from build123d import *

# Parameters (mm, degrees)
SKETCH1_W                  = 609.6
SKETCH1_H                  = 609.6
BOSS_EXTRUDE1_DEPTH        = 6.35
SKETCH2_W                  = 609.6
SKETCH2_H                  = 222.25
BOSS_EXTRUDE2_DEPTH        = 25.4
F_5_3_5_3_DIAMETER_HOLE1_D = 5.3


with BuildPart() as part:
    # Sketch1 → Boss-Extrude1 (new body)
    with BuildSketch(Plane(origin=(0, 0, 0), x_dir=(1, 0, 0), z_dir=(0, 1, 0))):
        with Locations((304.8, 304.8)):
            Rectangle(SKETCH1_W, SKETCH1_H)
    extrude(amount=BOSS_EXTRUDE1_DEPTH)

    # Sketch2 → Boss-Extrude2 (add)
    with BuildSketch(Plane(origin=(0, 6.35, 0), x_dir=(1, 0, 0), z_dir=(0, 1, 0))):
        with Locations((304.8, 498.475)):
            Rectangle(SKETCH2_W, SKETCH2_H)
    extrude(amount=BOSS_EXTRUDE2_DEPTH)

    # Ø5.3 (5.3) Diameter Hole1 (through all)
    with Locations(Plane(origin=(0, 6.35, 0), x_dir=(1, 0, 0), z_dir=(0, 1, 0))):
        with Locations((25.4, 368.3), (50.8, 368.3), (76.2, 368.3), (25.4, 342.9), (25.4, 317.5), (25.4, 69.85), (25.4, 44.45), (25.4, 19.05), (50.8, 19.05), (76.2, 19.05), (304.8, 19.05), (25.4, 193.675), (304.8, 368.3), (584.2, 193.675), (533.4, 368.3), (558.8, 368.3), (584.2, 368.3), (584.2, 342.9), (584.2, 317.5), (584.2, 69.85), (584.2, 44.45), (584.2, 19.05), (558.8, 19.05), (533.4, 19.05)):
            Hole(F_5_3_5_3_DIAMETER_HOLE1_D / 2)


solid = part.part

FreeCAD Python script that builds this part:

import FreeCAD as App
import Part
import Sketcher
Q = App.Units.Quantity


def add_polygon(sketch, points):
    """Adds a closed chain of lines whose ends are joined by coincident constraints."""
    first, n = sketch.GeometryCount, len(points)
    for a, b in zip(points, points[1:] + points[:1]):
        sketch.addGeometry(Part.LineSegment(App.Vector(*a, 0), App.Vector(*b, 0)), False)
    for i in range(n):
        sketch.addConstraint(Sketcher.Constraint("Coincident", first + i, 2, first + (i + 1) % n, 1))

doc = App.newDocument("Part")
body = doc.addObject("PartDesign::Body", "Body")

sketch1 = body.newObject("Sketcher::SketchObject", "Sketch")
sketch1.AttachmentSupport = (doc.getObject("XZ_Plane"), [""])
sketch1.MapMode = "FlatFace"
add_polygon(sketch1, [(0, -610), (0, 0), (610, 0), (610, -610)])
sketch1.addConstraint([
    Sketcher.Constraint("Vertical", 0),
    Sketcher.Constraint("Horizontal", 1),
    Sketcher.Constraint("Vertical", 2),
    Sketcher.Constraint("Horizontal", 3),
    Sketcher.Constraint("Coincident", 0, 2, -1, 1),
    Sketcher.Constraint("Equal", 3, 0),
    Sketcher.Constraint("DistanceX", 1, 1, 1, 2, Q("24 in")),
])
pad1 = body.newObject("PartDesign::Pad", "Pad")
pad1.Profile = sketch1
pad1.Length = Q("0.25 in")
pad1.Reversed = True

sketch2 = body.newObject("Sketcher::SketchObject", "Sketch001")
sketch2.AttachmentSupport = (doc.getObject("XZ_Plane"), [""])
sketch2.MapMode = "FlatFace"
sketch2.AttachmentOffset = App.Placement(App.Vector(0, 0, -0.25 * 25.4), App.Rotation())
add_polygon(sketch2, [(0, -610), (0, -387), (610, -387), (610, -610)])
sketch2.addConstraint([
    Sketcher.Constraint("Vertical", 0),
    Sketcher.Constraint("Horizontal", 1),
    Sketcher.Constraint("Vertical", 2),
    Sketcher.Constraint("Horizontal", 3),
    Sketcher.Constraint("PointOnObject", 0, 2, -2),
    Sketcher.Constraint("DistanceX", 1, 1, 1, 2, Q("24 in")),
    Sketcher.Constraint("DistanceY", 2, 2, -1, 1, Q("24 in")),
    Sketcher.Constraint("DistanceY", 0, 1, 0, 2, Q("8.75 in")),
])
pad2 = body.newObject("PartDesign::Pad", "Pad001")
pad2.Profile = sketch2
pad2.Length = Q("1 in")
pad2.Reversed = True

sketch3 = body.newObject("Sketcher::SketchObject", "Sketch002")
sketch3.AttachmentSupport = (doc.getObject("XZ_Plane"), [""])
sketch3.MapMode = "FlatFace"
sketch3.AttachmentOffset = App.Placement(App.Vector(0, 0, -0.25 * 25.4), App.Rotation())
sketch3.addGeometry([
    Part.Circle(App.Vector(25.4, -368.3, 0), App.Vector(0, 0, 1), 2.6),
    Part.Circle(App.Vector(50.8, -368.3, 0), App.Vector(0, 0, 1), 2.6),
    Part.Circle(App.Vector(76.2, -368.3, 0), App.Vector(0, 0, 1), 2.6),
    Part.Circle(App.Vector(25.4, -342.9, 0), App.Vector(0, 0, 1), 2.6),
    Part.Circle(App.Vector(25.4, -317.5, 0), App.Vector(0, 0, 1), 2.6),
    Part.Circle(App.Vector(25.4, -69.8, 0), App.Vector(0, 0, 1), 2.6),
    Part.Circle(App.Vector(25.4, -44.5, 0), App.Vector(0, 0, 1), 2.6),
    Part.Circle(App.Vector(25.4, -19.1, 0), App.Vector(0, 0, 1), 2.6),
    Part.Circle(App.Vector(50.8, -19.1, 0), App.Vector(0, 0, 1), 2.6),
    Part.Circle(App.Vector(76.2, -19.1, 0), App.Vector(0, 0, 1), 2.6),
    Part.Circle(App.Vector(304.8, -19.1, 0), App.Vector(0, 0, 1), 2.6),
    Part.Circle(App.Vector(25.4, -193.7, 0), App.Vector(0, 0, 1), 2.6),
    Part.Circle(App.Vector(304.8, -368.3, 0), App.Vector(0, 0, 1), 2.6),
    Part.Circle(App.Vector(584.2, -193.7, 0), App.Vector(0, 0, 1), 2.6),
    Part.Circle(App.Vector(533.4, -368.3, 0), App.Vector(0, 0, 1), 2.6),
    Part.Circle(App.Vector(558.8, -368.3, 0), App.Vector(0, 0, 1), 2.6),
    Part.Circle(App.Vector(584.2, -368.3, 0), App.Vector(0, 0, 1), 2.6),
    Part.Circle(App.Vector(584.2, -342.9, 0), App.Vector(0, 0, 1), 2.6),
    Part.Circle(App.Vector(584.2, -317.5, 0), App.Vector(0, 0, 1), 2.6),
    Part.Circle(App.Vector(584.2, -69.8, 0), App.Vector(0, 0, 1), 2.6),
    Part.Circle(App.Vector(584.2, -44.5, 0), App.Vector(0, 0, 1), 2.6),
    Part.Circle(App.Vector(584.2, -19.1, 0), App.Vector(0, 0, 1), 2.6),
    Part.Circle(App.Vector(558.8, -19.1, 0), App.Vector(0, 0, 1), 2.6),
    Part.Circle(App.Vector(533.4, -19.1, 0), App.Vector(0, 0, 1), 2.6),
], False)
sketch3.addConstraint([
    Sketcher.Constraint("Equal", 0, 1),
    Sketcher.Constraint("Equal", 1, 2),
    Sketcher.Constraint("Equal", 2, 3),
    Sketcher.Constraint("Equal", 3, 4),
    Sketcher.Constraint("Equal", 4, 5),
    Sketcher.Constraint("Equal", 5, 6),
    Sketcher.Constraint("Equal", 6, 7),
    Sketcher.Constraint("Equal", 7, 8),
    Sketcher.Constraint("Equal", 8, 9),
    Sketcher.Constraint("Equal", 9, 10),
    Sketcher.Constraint("Equal", 10, 11),
    Sketcher.Constraint("Equal", 11, 12),
    Sketcher.Constraint("Equal", 12, 13),
    Sketcher.Constraint("Equal", 13, 14),
    Sketcher.Constraint("Equal", 14, 15),
    Sketcher.Constraint("Equal", 15, 16),
    Sketcher.Constraint("Equal", 16, 17),
    Sketcher.Constraint("Equal", 17, 18),
    Sketcher.Constraint("Equal", 18, 19),
    Sketcher.Constraint("Equal", 19, 20),
    Sketcher.Constraint("Equal", 20, 21),
    Sketcher.Constraint("Equal", 21, 22),
    Sketcher.Constraint("Equal", 22, 23),
    Sketcher.Constraint("Horizontal", 0, 3, 1, 3),
    Sketcher.Constraint("Horizontal", 1, 3, 2, 3),
    Sketcher.Constraint("Horizontal", 7, 3, 8, 3),
    Sketcher.Constraint("Horizontal", 8, 3, 9, 3),
    Sketcher.Constraint("Horizontal", 9, 3, 10, 3),
    Sketcher.Constraint("Horizontal", 2, 3, 12, 3),
    Sketcher.Constraint("Horizontal", 11, 3, 13, 3),
    Sketcher.Constraint("Horizontal", 12, 3, 14, 3),
    Sketcher.Constraint("Horizontal", 14, 3, 15, 3),
    Sketcher.Constraint("Horizontal", 15, 3, 16, 3),
    Sketcher.Constraint("Horizontal", 3, 3, 17, 3),
    Sketcher.Constraint("Horizontal", 4, 3, 18, 3),
    Sketcher.Constraint("Horizontal", 5, 3, 19, 3),
    Sketcher.Constraint("Horizontal", 6, 3, 20, 3),
    Sketcher.Constraint("Horizontal", 10, 3, 21, 3),
    Sketcher.Constraint("Horizontal", 21, 3, 22, 3),
    Sketcher.Constraint("Horizontal", 22, 3, 23, 3),
    Sketcher.Constraint("Vertical", 0, 3, 3, 3),
    Sketcher.Constraint("Vertical", 3, 3, 4, 3),
    Sketcher.Constraint("Vertical", 4, 3, 5, 3),
    Sketcher.Constraint("Vertical", 5, 3, 6, 3),
    Sketcher.Constraint("Vertical", 6, 3, 7, 3),
    Sketcher.Constraint("Vertical", 1, 3, 8, 3),
    Sketcher.Constraint("Vertical", 2, 3, 9, 3),
    Sketcher.Constraint("Vertical", 7, 3, 11, 3),
    Sketcher.Constraint("Vertical", 10, 3, 12, 3),
    Sketcher.Constraint("Vertical", 13, 3, 16, 3),
    Sketcher.Constraint("Vertical", 16, 3, 17, 3),
    Sketcher.Constraint("Vertical", 17, 3, 18, 3),
    Sketcher.Constraint("Vertical", 18, 3, 19, 3),
    Sketcher.Constraint("Vertical", 19, 3, 20, 3),
    Sketcher.Constraint("Vertical", 20, 3, 21, 3),
    Sketcher.Constraint("Vertical", 15, 3, 22, 3),
    Sketcher.Constraint("Vertical", 14, 3, 23, 3),
    Sketcher.Constraint("DistanceX", -1, 1, 0, 3, Q("1 in")),
    Sketcher.Constraint("DistanceX", -1, 1, 1, 3, Q("2 in")),
    Sketcher.Constraint("DistanceX", -1, 1, 2, 3, Q("3 in")),
    Sketcher.Constraint("DistanceX", -1, 1, 10, 3, Q("12 in")),
    Sketcher.Constraint("DistanceX", -1, 1, 13, 3, Q("23 in")),
    Sketcher.Constraint("DistanceX", -1, 1, 14, 3, Q("21 in")),
    Sketcher.Constraint("DistanceX", -1, 1, 15, 3, Q("22 in")),
    Sketcher.Constraint("DistanceY", 0, 3, 3, 3, Q("1 in")),
    Sketcher.Constraint("DistanceY", 3, 3, 4, 3, Q("1 in")),
    Sketcher.Constraint("DistanceY", 5, 3, 6, 3, Q("1 in")),
    Sketcher.Constraint("DistanceY", 6, 3, 7, 3, Q("1 in")),
    Sketcher.Constraint("DistanceY", 0, 3, -1, 1, Q("14.5 in")),
    Sketcher.Constraint("Diameter", 0, Q("5.3 mm")),
    Sketcher.Constraint("DistanceY", 5, 3, -1, 1, Q("2.75 in")),
    Sketcher.Constraint("DistanceY", 11, 3, -1, 1, Q("7.625 in")),
])
doc.recompute()
hole = body.newObject("PartDesign::Hole", "Hole")
hole.Profile = sketch3
hole.ThreadType = "None"
hole.Diameter = 5.3
hole.DepthType = "ThroughAll"
hole.Reversed = True

doc.recompute()
